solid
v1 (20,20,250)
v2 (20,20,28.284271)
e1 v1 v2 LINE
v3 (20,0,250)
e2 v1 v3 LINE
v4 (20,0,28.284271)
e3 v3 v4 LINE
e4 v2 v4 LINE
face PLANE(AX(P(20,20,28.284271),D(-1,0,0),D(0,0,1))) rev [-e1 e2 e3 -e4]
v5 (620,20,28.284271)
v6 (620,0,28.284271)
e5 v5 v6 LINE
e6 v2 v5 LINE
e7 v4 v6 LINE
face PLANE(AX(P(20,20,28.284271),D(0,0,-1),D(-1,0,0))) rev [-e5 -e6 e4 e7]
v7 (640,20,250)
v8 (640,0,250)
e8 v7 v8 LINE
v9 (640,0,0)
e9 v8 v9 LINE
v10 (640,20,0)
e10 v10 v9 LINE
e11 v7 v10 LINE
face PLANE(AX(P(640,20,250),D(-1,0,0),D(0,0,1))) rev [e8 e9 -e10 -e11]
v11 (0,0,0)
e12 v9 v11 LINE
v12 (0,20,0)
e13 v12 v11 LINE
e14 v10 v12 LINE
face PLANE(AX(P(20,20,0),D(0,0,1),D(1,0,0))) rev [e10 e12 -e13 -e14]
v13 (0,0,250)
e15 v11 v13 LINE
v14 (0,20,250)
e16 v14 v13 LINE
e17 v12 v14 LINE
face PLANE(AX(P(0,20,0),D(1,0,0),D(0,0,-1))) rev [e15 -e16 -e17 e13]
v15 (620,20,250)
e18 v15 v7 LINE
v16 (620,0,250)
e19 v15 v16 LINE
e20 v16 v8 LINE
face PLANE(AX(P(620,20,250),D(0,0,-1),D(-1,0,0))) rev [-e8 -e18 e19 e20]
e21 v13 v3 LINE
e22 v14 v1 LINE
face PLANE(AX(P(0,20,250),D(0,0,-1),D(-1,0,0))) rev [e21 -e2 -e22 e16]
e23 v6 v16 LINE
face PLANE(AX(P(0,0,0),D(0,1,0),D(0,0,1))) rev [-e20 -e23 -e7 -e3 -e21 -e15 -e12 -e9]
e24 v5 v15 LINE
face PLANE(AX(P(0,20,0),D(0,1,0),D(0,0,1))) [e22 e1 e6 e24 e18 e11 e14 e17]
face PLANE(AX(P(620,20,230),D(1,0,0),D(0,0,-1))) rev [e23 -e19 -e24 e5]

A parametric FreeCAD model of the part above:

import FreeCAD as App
import Part
import Sketcher

V = App.Vector

doc = App.newDocument("Part")
body = doc.addObject("PartDesign::Body", "Body")

# Sketch on XZ plane
sketch1 = doc.addObject("Sketcher::SketchObject", "Sketch")
body.addObject(sketch1)
sketch1.AttachmentSupport = (doc.XZ_Plane, [""])
sketch1.MapMode = "FlatFace"
sketch1.addGeometry([
    Part.LineSegment(V(0, 0, 0), V(0, 250, 0)),  # 0
    Part.LineSegment(V(0, 250, 0), V(20, 250, 0)),  # 1
    Part.LineSegment(V(20, 250, 0), V(20, 28, 0)),  # 2
    Part.LineSegment(V(20, 28, 0), V(620, 28, 0)),  # 3
    Part.LineSegment(V(620, 28, 0), V(620, 250, 0)),  # 4
    Part.LineSegment(V(620, 250, 0), V(640, 250, 0)),  # 5
    Part.LineSegment(V(640, 250, 0), V(640, 0, 0)),  # 6
    Part.LineSegment(V(640, 0, 0), V(0, 0, 0)),  # 7
], False)
sketch1.addConstraint([
    Sketcher.Constraint("Coincident", 0, 2, 1, 1),
    Sketcher.Constraint("Coincident", 1, 2, 2, 1),
    Sketcher.Constraint("Coincident", 2, 2, 3, 1),
    Sketcher.Constraint("Coincident", 3, 2, 4, 1),
    Sketcher.Constraint("Coincident", 4, 2, 5, 1),
    Sketcher.Constraint("Coincident", 5, 2, 6, 1),
    Sketcher.Constraint("Coincident", 6, 2, 7, 1),
    Sketcher.Constraint("Coincident", 7, 2, 0, 1),
    Sketcher.Constraint("Vertical", 0),
    Sketcher.Constraint("Horizontal", 1),
    Sketcher.Constraint("Vertical", 2),
    Sketcher.Constraint("Horizontal", 3),
    Sketcher.Constraint("Vertical", 4),
    Sketcher.Constraint("Horizontal", 5),
    Sketcher.Constraint("Vertical", 6),
    Sketcher.Constraint("Horizontal", 7),
    Sketcher.Constraint("Coincident", 7, 2, -1, 1),
    Sketcher.Constraint("Horizontal", 1, 2, 4, 2),
    Sketcher.Constraint("Equal", 1, 5),
    Sketcher.Constraint("DistanceX", 1, 1, 1, 2, 20.0),
    Sketcher.Constraint("DistanceX", 3, 1, 3, 2, 600.0),
    Sketcher.Constraint("DistanceY", 0, 1, 0, 2, 250.0),
    Sketcher.Constraint("DistanceY", 2, 2, 2, 1, 221.715729),
])
pad1 = doc.addObject("PartDesign::Pad", "Pad")
body.addObject(pad1)
pad1.Profile = sketch1
pad1.Length = 20
pad1.Reversed = True

doc.recompute()
